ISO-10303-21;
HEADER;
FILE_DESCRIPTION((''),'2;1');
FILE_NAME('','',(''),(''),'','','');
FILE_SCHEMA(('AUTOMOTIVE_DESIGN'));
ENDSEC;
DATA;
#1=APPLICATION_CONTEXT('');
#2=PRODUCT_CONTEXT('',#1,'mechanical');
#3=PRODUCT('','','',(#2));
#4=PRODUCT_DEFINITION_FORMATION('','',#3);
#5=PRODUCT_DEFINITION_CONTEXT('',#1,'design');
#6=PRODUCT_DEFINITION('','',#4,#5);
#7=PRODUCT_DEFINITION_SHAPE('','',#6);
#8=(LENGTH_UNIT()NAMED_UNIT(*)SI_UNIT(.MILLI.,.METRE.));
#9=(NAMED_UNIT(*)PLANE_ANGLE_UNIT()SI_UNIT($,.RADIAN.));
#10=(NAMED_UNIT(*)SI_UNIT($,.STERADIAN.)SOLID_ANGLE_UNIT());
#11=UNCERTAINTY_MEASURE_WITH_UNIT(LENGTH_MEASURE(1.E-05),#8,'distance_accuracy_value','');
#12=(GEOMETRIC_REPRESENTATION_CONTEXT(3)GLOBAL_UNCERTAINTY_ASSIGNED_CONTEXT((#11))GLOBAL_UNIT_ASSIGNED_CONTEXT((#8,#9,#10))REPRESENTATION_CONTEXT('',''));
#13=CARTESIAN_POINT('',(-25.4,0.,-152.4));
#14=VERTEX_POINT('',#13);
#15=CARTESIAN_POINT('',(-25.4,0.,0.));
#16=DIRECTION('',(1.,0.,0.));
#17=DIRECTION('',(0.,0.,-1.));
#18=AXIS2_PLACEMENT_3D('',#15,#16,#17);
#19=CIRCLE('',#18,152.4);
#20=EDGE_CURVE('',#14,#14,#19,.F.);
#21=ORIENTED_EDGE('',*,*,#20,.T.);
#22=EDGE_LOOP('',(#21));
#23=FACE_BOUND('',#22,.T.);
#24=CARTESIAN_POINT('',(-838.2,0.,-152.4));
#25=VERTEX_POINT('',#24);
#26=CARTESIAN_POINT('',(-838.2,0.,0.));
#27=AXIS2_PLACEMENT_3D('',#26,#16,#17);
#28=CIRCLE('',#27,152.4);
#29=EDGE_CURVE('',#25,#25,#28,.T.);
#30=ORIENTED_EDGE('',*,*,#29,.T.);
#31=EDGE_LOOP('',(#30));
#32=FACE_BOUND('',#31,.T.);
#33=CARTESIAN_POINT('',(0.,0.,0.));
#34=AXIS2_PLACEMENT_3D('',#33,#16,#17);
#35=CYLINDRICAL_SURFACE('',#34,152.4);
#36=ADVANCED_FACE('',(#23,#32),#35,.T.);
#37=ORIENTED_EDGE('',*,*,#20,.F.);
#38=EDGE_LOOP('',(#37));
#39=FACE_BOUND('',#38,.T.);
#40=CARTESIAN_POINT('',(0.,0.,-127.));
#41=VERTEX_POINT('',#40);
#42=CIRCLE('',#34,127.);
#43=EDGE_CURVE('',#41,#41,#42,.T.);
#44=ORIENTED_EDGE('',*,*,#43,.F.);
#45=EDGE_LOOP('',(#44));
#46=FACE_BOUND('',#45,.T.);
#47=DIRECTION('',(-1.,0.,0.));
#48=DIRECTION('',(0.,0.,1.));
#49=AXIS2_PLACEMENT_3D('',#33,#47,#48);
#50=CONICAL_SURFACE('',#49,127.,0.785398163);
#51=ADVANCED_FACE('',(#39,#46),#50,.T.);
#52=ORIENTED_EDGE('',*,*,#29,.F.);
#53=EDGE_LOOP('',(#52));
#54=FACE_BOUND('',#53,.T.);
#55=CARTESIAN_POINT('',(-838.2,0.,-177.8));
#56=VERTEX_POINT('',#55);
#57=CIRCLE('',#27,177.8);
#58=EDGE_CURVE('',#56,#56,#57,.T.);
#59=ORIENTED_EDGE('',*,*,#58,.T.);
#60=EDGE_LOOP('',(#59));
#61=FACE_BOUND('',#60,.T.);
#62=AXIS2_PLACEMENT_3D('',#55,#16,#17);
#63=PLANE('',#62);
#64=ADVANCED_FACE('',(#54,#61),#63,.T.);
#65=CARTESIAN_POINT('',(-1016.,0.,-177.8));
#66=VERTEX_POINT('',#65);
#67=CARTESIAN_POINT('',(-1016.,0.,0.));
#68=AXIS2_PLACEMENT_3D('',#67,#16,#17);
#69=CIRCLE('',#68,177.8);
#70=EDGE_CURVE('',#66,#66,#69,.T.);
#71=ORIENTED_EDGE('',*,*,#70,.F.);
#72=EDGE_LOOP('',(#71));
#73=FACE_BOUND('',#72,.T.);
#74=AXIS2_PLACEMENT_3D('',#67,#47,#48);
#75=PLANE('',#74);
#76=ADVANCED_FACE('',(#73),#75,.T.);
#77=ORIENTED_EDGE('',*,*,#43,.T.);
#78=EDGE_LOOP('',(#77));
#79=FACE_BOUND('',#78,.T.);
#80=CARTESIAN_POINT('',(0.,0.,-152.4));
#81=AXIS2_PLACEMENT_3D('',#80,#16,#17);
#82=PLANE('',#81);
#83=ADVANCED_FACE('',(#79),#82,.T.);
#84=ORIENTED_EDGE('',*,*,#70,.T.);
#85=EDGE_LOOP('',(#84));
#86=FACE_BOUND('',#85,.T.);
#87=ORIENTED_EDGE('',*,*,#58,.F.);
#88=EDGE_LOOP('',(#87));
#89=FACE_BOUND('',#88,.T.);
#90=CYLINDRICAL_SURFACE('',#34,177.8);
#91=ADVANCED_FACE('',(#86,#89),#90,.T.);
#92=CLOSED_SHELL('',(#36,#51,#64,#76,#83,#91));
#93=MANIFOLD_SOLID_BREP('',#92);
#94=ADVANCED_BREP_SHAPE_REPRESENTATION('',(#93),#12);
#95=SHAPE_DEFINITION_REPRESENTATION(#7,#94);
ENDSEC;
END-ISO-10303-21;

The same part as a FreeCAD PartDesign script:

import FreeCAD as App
import Part
import Sketcher
from FreeCAD import Vector
Q = App.Units.Quantity


def edges_at(feature, points):
    """Names of the edges that pass closest to the given points."""
    edges = feature.Shape.Edges
    near = lambda p: min(range(len(edges)), key=lambda i: edges[i].distToShape(Part.Vertex(*p))[0])
    return sorted({f"Edge{near(p) + 1}" for p in points})

doc = App.newDocument("Part")
body = doc.addObject("PartDesign::Body", "Body")

# Sketch on XZ plane
sketch1 = body.newObject("Sketcher::SketchObject", "Sketch")
sketch1.AttachmentSupport = (doc.getObject("XZ_Plane"), [""])
sketch1.MapMode = "FlatFace"
sketch1.addGeometry(Part.LineSegment(Vector(-1016, 0, 0), Vector(0, 0, 0)), False)
sketch1.addGeometry(Part.LineSegment(Vector(0, 0, 0), Vector(0, -152, 0)), False)
sketch1.addGeometry(Part.LineSegment(Vector(0, -152, 0), Vector(-838, -152, 0)), False)
sketch1.addGeometry(Part.LineSegment(Vector(-838, -152, 0), Vector(-838, -178, 0)), False)
sketch1.addGeometry(Part.LineSegment(Vector(-838, -178, 0), Vector(-1016, -178, 0)), False)
sketch1.addGeometry(Part.LineSegment(Vector(-1016, -178, 0), Vector(-1016, 0, 0)), False)
sketch1.addConstraint(Sketcher.Constraint("Coincident", 0, 2, 1, 1))
sketch1.addConstraint(Sketcher.Constraint("Coincident", 1, 2, 2, 1))
sketch1.addConstraint(Sketcher.Constraint("Coincident", 2, 2, 3, 1))
sketch1.addConstraint(Sketcher.Constraint("Coincident", 3, 2, 4, 1))
sketch1.addConstraint(Sketcher.Constraint("Coincident", 4, 2, 5, 1))
sketch1.addConstraint(Sketcher.Constraint("Coincident", 5, 2, 0, 1))
sketch1.addConstraint(Sketcher.Constraint("Horizontal", 0))
sketch1.addConstraint(Sketcher.Constraint("Vertical", 1))
sketch1.addConstraint(Sketcher.Constraint("Horizontal", 2))
sketch1.addConstraint(Sketcher.Constraint("Vertical", 3))
sketch1.addConstraint(Sketcher.Constraint("Horizontal", 4))
sketch1.addConstraint(Sketcher.Constraint("Vertical", 5))
sketch1.addConstraint(Sketcher.Constraint("Coincident", 0, 2, -1, 1))
sketch1.addConstraint(Sketcher.Constraint("Equal", 4, 5))
sketch1.addConstraint(Sketcher.Constraint("DistanceX", 0, 1, 0, 2, Q("40 in")))
sketch1.addConstraint(Sketcher.Constraint("DistanceX", 2, 2, 2, 1, Q("33 in")))
sketch1.addConstraint(Sketcher.Constraint("DistanceY", 1, 2, 1, 1, Q("6 in")))
revolution = body.newObject("PartDesign::Revolution", "Revolution")
revolution.Profile = sketch1
revolution.ReferenceAxis = (sketch1, ["H_Axis"])
revolution.Angle = 360
doc.recompute()

chamfer = body.newObject("PartDesign::Chamfer", "Chamfer")
chamfer.Base = (revolution, edges_at(revolution, [(0, 0, 152.4)]))
chamfer.Size = Q("1 in")

doc.recompute()
